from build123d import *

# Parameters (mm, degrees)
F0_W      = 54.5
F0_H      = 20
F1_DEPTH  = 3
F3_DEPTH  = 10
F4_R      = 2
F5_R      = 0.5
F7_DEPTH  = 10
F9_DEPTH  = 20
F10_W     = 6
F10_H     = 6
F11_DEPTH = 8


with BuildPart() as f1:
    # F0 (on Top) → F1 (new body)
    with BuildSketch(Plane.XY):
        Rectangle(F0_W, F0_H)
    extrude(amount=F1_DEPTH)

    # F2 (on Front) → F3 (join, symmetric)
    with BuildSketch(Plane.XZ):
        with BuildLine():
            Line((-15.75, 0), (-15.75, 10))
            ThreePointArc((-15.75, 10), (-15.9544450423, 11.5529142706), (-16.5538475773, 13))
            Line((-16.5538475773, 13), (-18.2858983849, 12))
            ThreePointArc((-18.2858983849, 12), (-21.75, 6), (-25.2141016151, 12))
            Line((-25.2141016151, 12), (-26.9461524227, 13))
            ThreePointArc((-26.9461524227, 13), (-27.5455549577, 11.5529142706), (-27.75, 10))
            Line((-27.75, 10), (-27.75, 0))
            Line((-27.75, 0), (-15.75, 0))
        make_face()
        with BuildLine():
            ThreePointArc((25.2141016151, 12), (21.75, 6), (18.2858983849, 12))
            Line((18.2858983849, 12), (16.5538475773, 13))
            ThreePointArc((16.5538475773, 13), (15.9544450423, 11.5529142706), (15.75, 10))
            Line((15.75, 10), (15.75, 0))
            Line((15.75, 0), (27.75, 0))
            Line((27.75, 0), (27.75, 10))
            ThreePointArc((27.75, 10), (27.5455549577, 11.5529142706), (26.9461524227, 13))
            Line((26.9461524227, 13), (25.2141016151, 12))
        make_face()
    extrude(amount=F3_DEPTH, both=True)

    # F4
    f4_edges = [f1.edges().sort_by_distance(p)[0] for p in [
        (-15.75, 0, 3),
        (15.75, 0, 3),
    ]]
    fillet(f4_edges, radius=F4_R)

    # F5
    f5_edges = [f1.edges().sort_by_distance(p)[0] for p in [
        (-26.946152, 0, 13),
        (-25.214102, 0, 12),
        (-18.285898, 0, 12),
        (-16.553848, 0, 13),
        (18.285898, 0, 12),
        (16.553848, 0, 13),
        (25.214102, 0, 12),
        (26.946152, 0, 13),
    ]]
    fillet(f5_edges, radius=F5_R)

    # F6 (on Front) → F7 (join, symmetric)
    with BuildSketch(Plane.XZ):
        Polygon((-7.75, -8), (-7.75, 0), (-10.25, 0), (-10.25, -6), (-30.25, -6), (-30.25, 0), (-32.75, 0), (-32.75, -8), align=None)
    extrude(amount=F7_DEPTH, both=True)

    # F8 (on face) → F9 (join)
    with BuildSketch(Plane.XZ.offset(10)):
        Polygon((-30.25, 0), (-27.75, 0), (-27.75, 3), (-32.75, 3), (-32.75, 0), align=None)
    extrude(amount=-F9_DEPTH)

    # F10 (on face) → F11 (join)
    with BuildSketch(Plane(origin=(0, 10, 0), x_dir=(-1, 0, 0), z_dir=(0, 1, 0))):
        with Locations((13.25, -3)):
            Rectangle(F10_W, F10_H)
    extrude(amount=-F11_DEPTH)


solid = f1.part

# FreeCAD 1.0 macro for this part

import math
import FreeCAD as App
import Part
import Sketcher

V = App.Vector
Q = App.Units.Quantity


def edges_at(feature, points):
    """Names of the edges that pass closest to the given points."""
    edges = feature.Shape.Edges
    near = lambda p: min(range(len(edges)), key=lambda i: edges[i].distToShape(Part.Vertex(*p))[0])
    return sorted({f"Edge{near(p) + 1}" for p in points})

doc = App.newDocument("Part")
body = doc.addObject("PartDesign::Body", "Body")

# Sketch on XY plane
sketch1 = doc.addObject("Sketcher::SketchObject", "Sketch")
body.addObject(sketch1)
sketch1.AttachmentSupport = (doc.XY_Plane, [""])
sketch1.MapMode = "FlatFace"
sketch1.addGeometry(Part.LineSegment(V(-27.25, 10, 0), V(-27.25, -10, 0)), False)
sketch1.addGeometry(Part.LineSegment(V(-27.25, -10, 0), V(27.25, -10, 0)), False)
sketch1.addGeometry(Part.LineSegment(V(27.25, -10, 0), V(27.25, 10, 0)), False)
sketch1.addGeometry(Part.LineSegment(V(27.25, 10, 0), V(-27.25, 10, 0)), False)
sketch1.addConstraint(Sketcher.Constraint("Coincident", 0, 2, 1, 1))
sketch1.addConstraint(Sketcher.Constraint("Coincident", 1, 2, 2, 1))
sketch1.addConstraint(Sketcher.Constraint("Coincident", 2, 2, 3, 1))
sketch1.addConstraint(Sketcher.Constraint("Coincident", 3, 2, 0, 1))
sketch1.addConstraint(Sketcher.Constraint("Vertical", 0))
sketch1.addConstraint(Sketcher.Constraint("Horizontal", 1))
sketch1.addConstraint(Sketcher.Constraint("Vertical", 2))
sketch1.addConstraint(Sketcher.Constraint("Horizontal", 3))
sketch1.addConstraint(Sketcher.Constraint("Symmetric", 0, 2, 2, 2, -1, 1))
sketch1.addConstraint(Sketcher.Constraint("DistanceY", 0, 2, 0, 1, 20.0))
sketch1.addConstraint(Sketcher.Constraint("DistanceX", 1, 1, 1, 2, 54.5))
pad1 = doc.addObject("PartDesign::Pad", "Pad")
body.addObject(pad1)
pad1.Profile = sketch1
pad1.Length = 3

# Sketch on XZ plane
sketch2 = doc.addObject("Sketcher::SketchObject", "Sketch001")
body.addObject(sketch2)
sketch2.AttachmentSupport = (doc.XZ_Plane, [""])
sketch2.MapMode = "FlatFace"
sketch2.addGeometry(Part.LineSegment(V(-15.75, 0, 0), V(-15.75, 10, 0)), False)
sketch2.addGeometry(Part.ArcOfCircle(Part.Circle(V(-21.75, 10, 0), V(0, 0, 1), 6), math.radians(0), math.radians(30)), False)
sketch2.addGeometry(Part.LineSegment(V(-16.553848, 13, 0), V(-18.285898, 12, 0)), False)
sketch2.addGeometry(Part.ArcOfCircle(Part.Circle(V(-21.75, 10, 0), V(0, 0, 1), 4), math.radians(150), math.radians(390)), False)
sketch2.addGeometry(Part.LineSegment(V(-25.214102, 12, 0), V(-26.946152, 13, 0)), False)
sketch2.addGeometry(Part.ArcOfCircle(Part.Circle(V(-21.75, 10, 0), V(0, 0, 1), 6), math.radians(150), math.radians(180)), False)
sketch2.addGeometry(Part.LineSegment(V(-27.75, 10, 0), V(-27.75, 0, 0)), False)
sketch2.addGeometry(Part.LineSegment(V(-27.75, 0, 0), V(-15.75, 0, 0)), False)
sketch2.addGeometry(Part.ArcOfCircle(Part.Circle(V(21.75, 10, 0), V(0, 0, 1), 4), math.radians(150), math.radians(390)), False)
sketch2.addGeometry(Part.LineSegment(V(18.285898, 12, 0), V(16.553848, 13, 0)), False)
sketch2.addGeometry(Part.ArcOfCircle(Part.Circle(V(21.75, 10, 0), V(0, 0, 1), 6), math.radians(150), math.radians(180)), False)
sketch2.addGeometry(Part.LineSegment(V(15.75, 10, 0), V(15.75, 0, 0)), False)
sketch2.addGeometry(Part.LineSegment(V(15.75, 0, 0), V(27.75, 0, 0)), False)
sketch2.addGeometry(Part.LineSegment(V(27.75, 0, 0), V(27.75, 10, 0)), False)
sketch2.addGeometry(Part.ArcOfCircle(Part.Circle(V(21.75, 10, 0), V(0, 0, 1), 6), math.radians(0), math.radians(30)), False)
sketch2.addGeometry(Part.LineSegment(V(26.946152, 13, 0), V(25.214102, 12, 0)), False)
sketch2.addConstraint(Sketcher.Constraint("Tangent", 0, 2, 1, 1))
sketch2.addConstraint(Sketcher.Constraint("Coincident", 1, 2, 2, 1))
sketch2.addConstraint(Sketcher.Constraint("Coincident", 2, 2, 3, 2))
sketch2.addConstraint(Sketcher.Constraint("Coincident", 3, 1, 4, 1))
sketch2.addConstraint(Sketcher.Constraint("Coincident", 4, 2, 5, 1))
sketch2.addConstraint(Sketcher.Constraint("Tangent", 5, 2, 6, 1))
sketch2.addConstraint(Sketcher.Constraint("Coincident", 6, 2, 7, 1))
sketch2.addConstraint(Sketcher.Constraint("Coincident", 7, 2, 0, 1))
sketch2.addConstraint(Sketcher.Constraint("Coincident", 8, 1, 9, 1))
sketch2.addConstraint(Sketcher.Constraint("Coincident", 9, 2, 10, 1))
sketch2.addConstraint(Sketcher.Constraint("Tangent", 10, 2, 11, 1))
sketch2.addConstraint(Sketcher.Constraint("Coincident", 11, 2, 12, 1))
sketch2.addConstraint(Sketcher.Constraint("Coincident", 12, 2, 13, 1))
sketch2.addConstraint(Sketcher.Constraint("Tangent", 13, 2, 14, 1))
sketch2.addConstraint(Sketcher.Constraint("Coincident", 14, 2, 15, 1))
sketch2.addConstraint(Sketcher.Constraint("Coincident", 15, 2, 8, 2))
sketch2.addConstraint(Sketcher.Constraint("Vertical", 0))
sketch2.addConstraint(Sketcher.Constraint("Vertical", 6))
sketch2.addConstraint(Sketcher.Constraint("Horizontal", 7))
sketch2.addConstraint(Sketcher.Constraint("Vertical", 11))
sketch2.addConstraint(Sketcher.Constraint("Horizontal", 12))
sketch2.addConstraint(Sketcher.Constraint("Vertical", 13))
sketch2.addConstraint(Sketcher.Constraint("Coincident", 3, 3, 1, 3))
sketch2.addConstraint(Sketcher.Constraint("Coincident", 5, 3, 1, 3))
sketch2.addConstraint(Sketcher.Constraint("Coincident", 10, 3, 8, 3))
sketch2.addConstraint(Sketcher.Constraint("Coincident", 14, 3, 8, 3))
sketch2.addConstraint(Sketcher.Constraint("Equal", 1, 5))
sketch2.addConstraint(Sketcher.Constraint("Equal", 3, 8))
sketch2.addConstraint(Sketcher.Constraint("Equal", 5, 10))
sketch2.addConstraint(Sketcher.Constraint("Equal", 10, 14))
sketch2.addConstraint(Sketcher.Constraint("Symmetric", 7, 2, 11, 2, -1, 1))
sketch2.addConstraint(Sketcher.Constraint("Symmetric", 2, 2, 8, 1, -2))
sketch2.addConstraint(Sketcher.Constraint("PointOnObject", 6, 2, -1))
sketch2.addConstraint(Sketcher.Constraint("Parallel", 4, 9))
sketch2.addConstraint(Sketcher.Constraint("Parallel", 2, 15))
sketch2.addConstraint(Sketcher.Constraint("Horizontal", 2, 2, 3, 1))
sketch2.addConstraint(Sketcher.Constraint("Horizontal", 1, 2, 4, 2))
sketch2.addConstraint(Sketcher.Constraint("Horizontal", 9, 2, 14, 2))
sketch2.addConstraint(Sketcher.Constraint("Radius", 1, 6.0))
sketch2.addConstraint(Sketcher.Constraint("Radius", 3, 4.0))
sketch2.addConstraint(Sketcher.Constraint("DistanceY", 0, 1, 0, 2, 10.0))
sketch2.addConstraint(Sketcher.Constraint("Angle", 2, Q("-150 deg")))
sketch2.addConstraint(Sketcher.Constraint("DistanceY", -1, 1, 1, 2, 13.0))
sketch2.addConstraint(Sketcher.Constraint("DistanceX", 5, 3, 8, 3, 43.5))
pad2 = doc.addObject("PartDesign::Pad", "Pad001")
body.addObject(pad2)
pad2.Profile = sketch2
pad2.Length = 20
pad2.Midplane = True
doc.recompute()

fillet = doc.addObject("PartDesign::Fillet", "Fillet")
body.addObject(fillet)
fillet.Base = (pad2, edges_at(pad2, [(-15.75, 0, 3), (15.75, 0, 3)]))
fillet.Radius = 2
doc.recompute()

fillet2 = doc.addObject("PartDesign::Fillet", "Fillet001")
body.addObject(fillet2)
fillet2.Base = (fillet, edges_at(fillet, [
    (-26.946, 0, 13),
    (-25.214, 0, 12),
    (-18.286, 0, 12),
    (-16.554, 0, 13),
    (18.286, 0, 12),
    (16.554, 0, 13),
    (25.214, 0, 12),
    (26.946, 0, 13),
]))
fillet2.Radius = 0.5

# Sketch on XZ plane
sketch3 = doc.addObject("Sketcher::SketchObject", "Sketch002")
body.addObject(sketch3)
sketch3.AttachmentSupport = (doc.XZ_Plane, [""])
sketch3.MapMode = "FlatFace"
sketch3.addGeometry(Part.LineSegment(V(-7.75, -8, 0), V(-7.75, 0, 0)), False)
sketch3.addGeometry(Part.LineSegment(V(-7.75, 0, 0), V(-10.25, 0, 0)), False)
sketch3.addGeometry(Part.LineSegment(V(-10.25, 0, 0), V(-10.25, -6, 0)), False)
sketch3.addGeometry(Part.LineSegment(V(-10.25, -6, 0), V(-30.25, -6, 0)), False)
sketch3.addGeometry(Part.LineSegment(V(-30.25, -6, 0), V(-30.25, 0, 0)), False)
sketch3.addGeometry(Part.LineSegment(V(-30.25, 0, 0), V(-32.75, 0, 0)), False)
sketch3.addGeometry(Part.LineSegment(V(-32.75, 0, 0), V(-32.75, -8, 0)), False)
sketch3.addGeometry(Part.LineSegment(V(-32.75, -8, 0), V(-7.75, -8, 0)), False)
sketch3.addConstraint(Sketcher.Constraint("Coincident", 0, 2, 1, 1))
sketch3.addConstraint(Sketcher.Constraint("Coincident", 1, 2, 2, 1))
sketch3.addConstraint(Sketcher.Constraint("Coincident", 2, 2, 3, 1))
sketch3.addConstraint(Sketcher.Constraint("Coincident", 3, 2, 4, 1))
sketch3.addConstraint(Sketcher.Constraint("Coincident", 4, 2, 5, 1))
sketch3.addConstraint(Sketcher.Constraint("Coincident", 5, 2, 6, 1))
sketch3.addConstraint(Sketcher.Constraint("Coincident", 6, 2, 7, 1))
sketch3.addConstraint(Sketcher.Constraint("Coincident", 7, 2, 0, 1))
sketch3.addConstraint(Sketcher.Constraint("Vertical", 0))
sketch3.addConstraint(Sketcher.Constraint("Horizontal", 1))
sketch3.addConstraint(Sketcher.Constraint("Vertical", 2))
sketch3.addConstraint(Sketcher.Constraint("Horizontal", 3))
sketch3.addConstraint(Sketcher.Constraint("Vertical", 4))
sketch3.addConstraint(Sketcher.Constraint("Horizontal", 5))
sketch3.addConstraint(Sketcher.Constraint("Vertical", 6))
sketch3.addConstraint(Sketcher.Constraint("Horizontal", 7))
sketch3.addConstraint(Sketcher.Constraint("PointOnObject", 0, 2, -1))
sketch3.addConstraint(Sketcher.Constraint("PointOnObject", 4, 2, -1))
sketch3.addConstraint(Sketcher.Constraint("Equal", 1, 5))
sketch3.addConstraint(Sketcher.Constraint("DistanceX", 3, 2, 3, 1, 20.0))
sketch3.addConstraint(Sketcher.Constraint("DistanceX", 7, 1, 7, 2, 25.0))
sketch3.addConstraint(Sketcher.Constraint("DistanceY", 0, 1, 0, 2, 8.0))
sketch3.addConstraint(Sketcher.Constraint("DistanceY", 2, 2, 2, 1, 6.0))
sketch3.addConstraint(Sketcher.Constraint("DistanceX", 0, 2, -1, 1, 7.75))
pad3 = doc.addObject("PartDesign::Pad", "Pad002")
body.addObject(pad3)
pad3.Profile = sketch3
pad3.Length = 20
pad3.Midplane = True

# Sketch on XZ plane
sketch4 = doc.addObject("Sketcher::SketchObject", "Sketch003")
body.addObject(sketch4)
sketch4.AttachmentSupport = (doc.XZ_Plane, [""])
sketch4.MapMode = "FlatFace"
sketch4.AttachmentOffset = App.Placement(V(0, 0, 10), App.Rotation())
sketch4.addGeometry(Part.LineSegment(V(-27.75, 0, 0), V(-27.75, 3, 0)), False)
sketch4.addGeometry(Part.LineSegment(V(-27.75, 3, 0), V(-32.75, 3, 0)), False)
sketch4.addGeometry(Part.LineSegment(V(-32.75, 3, 0), V(-32.75, 0, 0)), False)
sketch4.addGeometry(Part.LineSegment(V(-32.75, 0, 0), V(-27.75, 0, 0)), False)
sketch4.addConstraint(Sketcher.Constraint("Coincident", 0, 2, 1, 1))
sketch4.addConstraint(Sketcher.Constraint("Coincident", 1, 2, 2, 1))
sketch4.addConstraint(Sketcher.Constraint("Coincident", 2, 2, 3, 1))
sketch4.addConstraint(Sketcher.Constraint("Coincident", 3, 2, 0, 1))
sketch4.addConstraint(Sketcher.Constraint("Vertical", 0))
sketch4.addConstraint(Sketcher.Constraint("Horizontal", 1))
sketch4.addConstraint(Sketcher.Constraint("Vertical", 2))
sketch4.addConstraint(Sketcher.Constraint("Horizontal", 3))
sketch4.addConstraint(Sketcher.Constraint("PointOnObject", 2, 2, -1))
sketch4.addConstraint(Sketcher.Constraint("DistanceX", 1, 2, 1, 1, 5.0))
sketch4.addConstraint(Sketcher.Constraint("DistanceY", 0, 1, 0, 2, 3.0))
sketch4.addConstraint(Sketcher.Constraint("DistanceX", 0, 2, -1, 1, 27.75))
pad4 = doc.addObject("PartDesign::Pad", "Pad003")
body.addObject(pad4)
pad4.Profile = sketch4
pad4.Length = 20
pad4.Reversed = True

# Sketch on XZ plane
sketch5 = doc.addObject("Sketcher::SketchObject", "Sketch004")
body.addObject(sketch5)
sketch5.AttachmentSupport = (doc.XZ_Plane, [""])
sketch5.MapMode = "FlatFace"
sketch5.AttachmentOffset = App.Placement(V(0, 0, -10), App.Rotation())
sketch5.addGeometry(Part.LineSegment(V(-10.25, 0, 0), V(-10.25, -6, 0)), False)
sketch5.addGeometry(Part.LineSegment(V(-10.25, -6, 0), V(-16.25, -6, 0)), False)
sketch5.addGeometry(Part.LineSegment(V(-16.25, -6, 0), V(-16.25, 0, 0)), False)
sketch5.addGeometry(Part.LineSegment(V(-16.25, 0, 0), V(-10.25, 0, 0)), False)
sketch5.addConstraint(Sketcher.Constraint("Coincident", 0, 2, 1, 1))
sketch5.addConstraint(Sketcher.Constraint("Coincident", 1, 2, 2, 1))
sketch5.addConstraint(Sketcher.Constraint("Coincident", 2, 2, 3, 1))
sketch5.addConstraint(Sketcher.Constraint("Coincident", 3, 2, 0, 1))
sketch5.addConstraint(Sketcher.Constraint("Vertical", 0))
sketch5.addConstraint(Sketcher.Constraint("Horizontal", 1))
sketch5.addConstraint(Sketcher.Constraint("Vertical", 2))
sketch5.addConstraint(Sketcher.Constraint("Horizontal", 3))
sketch5.addConstraint(Sketcher.Constraint("PointOnObject", 2, 2, -1))
sketch5.addConstraint(Sketcher.Constraint("Equal", 3, 0))
sketch5.addConstraint(Sketcher.Constraint("DistanceX", 1, 2, 1, 1, 6.0))
sketch5.addConstraint(Sketcher.Constraint("DistanceX", 0, 2, -1, 1, 10.25))
pad5 = doc.addObject("PartDesign::Pad", "Pad004")
body.addObject(pad5)
pad5.Profile = sketch5
pad5.Length = 8

doc.recompute()
